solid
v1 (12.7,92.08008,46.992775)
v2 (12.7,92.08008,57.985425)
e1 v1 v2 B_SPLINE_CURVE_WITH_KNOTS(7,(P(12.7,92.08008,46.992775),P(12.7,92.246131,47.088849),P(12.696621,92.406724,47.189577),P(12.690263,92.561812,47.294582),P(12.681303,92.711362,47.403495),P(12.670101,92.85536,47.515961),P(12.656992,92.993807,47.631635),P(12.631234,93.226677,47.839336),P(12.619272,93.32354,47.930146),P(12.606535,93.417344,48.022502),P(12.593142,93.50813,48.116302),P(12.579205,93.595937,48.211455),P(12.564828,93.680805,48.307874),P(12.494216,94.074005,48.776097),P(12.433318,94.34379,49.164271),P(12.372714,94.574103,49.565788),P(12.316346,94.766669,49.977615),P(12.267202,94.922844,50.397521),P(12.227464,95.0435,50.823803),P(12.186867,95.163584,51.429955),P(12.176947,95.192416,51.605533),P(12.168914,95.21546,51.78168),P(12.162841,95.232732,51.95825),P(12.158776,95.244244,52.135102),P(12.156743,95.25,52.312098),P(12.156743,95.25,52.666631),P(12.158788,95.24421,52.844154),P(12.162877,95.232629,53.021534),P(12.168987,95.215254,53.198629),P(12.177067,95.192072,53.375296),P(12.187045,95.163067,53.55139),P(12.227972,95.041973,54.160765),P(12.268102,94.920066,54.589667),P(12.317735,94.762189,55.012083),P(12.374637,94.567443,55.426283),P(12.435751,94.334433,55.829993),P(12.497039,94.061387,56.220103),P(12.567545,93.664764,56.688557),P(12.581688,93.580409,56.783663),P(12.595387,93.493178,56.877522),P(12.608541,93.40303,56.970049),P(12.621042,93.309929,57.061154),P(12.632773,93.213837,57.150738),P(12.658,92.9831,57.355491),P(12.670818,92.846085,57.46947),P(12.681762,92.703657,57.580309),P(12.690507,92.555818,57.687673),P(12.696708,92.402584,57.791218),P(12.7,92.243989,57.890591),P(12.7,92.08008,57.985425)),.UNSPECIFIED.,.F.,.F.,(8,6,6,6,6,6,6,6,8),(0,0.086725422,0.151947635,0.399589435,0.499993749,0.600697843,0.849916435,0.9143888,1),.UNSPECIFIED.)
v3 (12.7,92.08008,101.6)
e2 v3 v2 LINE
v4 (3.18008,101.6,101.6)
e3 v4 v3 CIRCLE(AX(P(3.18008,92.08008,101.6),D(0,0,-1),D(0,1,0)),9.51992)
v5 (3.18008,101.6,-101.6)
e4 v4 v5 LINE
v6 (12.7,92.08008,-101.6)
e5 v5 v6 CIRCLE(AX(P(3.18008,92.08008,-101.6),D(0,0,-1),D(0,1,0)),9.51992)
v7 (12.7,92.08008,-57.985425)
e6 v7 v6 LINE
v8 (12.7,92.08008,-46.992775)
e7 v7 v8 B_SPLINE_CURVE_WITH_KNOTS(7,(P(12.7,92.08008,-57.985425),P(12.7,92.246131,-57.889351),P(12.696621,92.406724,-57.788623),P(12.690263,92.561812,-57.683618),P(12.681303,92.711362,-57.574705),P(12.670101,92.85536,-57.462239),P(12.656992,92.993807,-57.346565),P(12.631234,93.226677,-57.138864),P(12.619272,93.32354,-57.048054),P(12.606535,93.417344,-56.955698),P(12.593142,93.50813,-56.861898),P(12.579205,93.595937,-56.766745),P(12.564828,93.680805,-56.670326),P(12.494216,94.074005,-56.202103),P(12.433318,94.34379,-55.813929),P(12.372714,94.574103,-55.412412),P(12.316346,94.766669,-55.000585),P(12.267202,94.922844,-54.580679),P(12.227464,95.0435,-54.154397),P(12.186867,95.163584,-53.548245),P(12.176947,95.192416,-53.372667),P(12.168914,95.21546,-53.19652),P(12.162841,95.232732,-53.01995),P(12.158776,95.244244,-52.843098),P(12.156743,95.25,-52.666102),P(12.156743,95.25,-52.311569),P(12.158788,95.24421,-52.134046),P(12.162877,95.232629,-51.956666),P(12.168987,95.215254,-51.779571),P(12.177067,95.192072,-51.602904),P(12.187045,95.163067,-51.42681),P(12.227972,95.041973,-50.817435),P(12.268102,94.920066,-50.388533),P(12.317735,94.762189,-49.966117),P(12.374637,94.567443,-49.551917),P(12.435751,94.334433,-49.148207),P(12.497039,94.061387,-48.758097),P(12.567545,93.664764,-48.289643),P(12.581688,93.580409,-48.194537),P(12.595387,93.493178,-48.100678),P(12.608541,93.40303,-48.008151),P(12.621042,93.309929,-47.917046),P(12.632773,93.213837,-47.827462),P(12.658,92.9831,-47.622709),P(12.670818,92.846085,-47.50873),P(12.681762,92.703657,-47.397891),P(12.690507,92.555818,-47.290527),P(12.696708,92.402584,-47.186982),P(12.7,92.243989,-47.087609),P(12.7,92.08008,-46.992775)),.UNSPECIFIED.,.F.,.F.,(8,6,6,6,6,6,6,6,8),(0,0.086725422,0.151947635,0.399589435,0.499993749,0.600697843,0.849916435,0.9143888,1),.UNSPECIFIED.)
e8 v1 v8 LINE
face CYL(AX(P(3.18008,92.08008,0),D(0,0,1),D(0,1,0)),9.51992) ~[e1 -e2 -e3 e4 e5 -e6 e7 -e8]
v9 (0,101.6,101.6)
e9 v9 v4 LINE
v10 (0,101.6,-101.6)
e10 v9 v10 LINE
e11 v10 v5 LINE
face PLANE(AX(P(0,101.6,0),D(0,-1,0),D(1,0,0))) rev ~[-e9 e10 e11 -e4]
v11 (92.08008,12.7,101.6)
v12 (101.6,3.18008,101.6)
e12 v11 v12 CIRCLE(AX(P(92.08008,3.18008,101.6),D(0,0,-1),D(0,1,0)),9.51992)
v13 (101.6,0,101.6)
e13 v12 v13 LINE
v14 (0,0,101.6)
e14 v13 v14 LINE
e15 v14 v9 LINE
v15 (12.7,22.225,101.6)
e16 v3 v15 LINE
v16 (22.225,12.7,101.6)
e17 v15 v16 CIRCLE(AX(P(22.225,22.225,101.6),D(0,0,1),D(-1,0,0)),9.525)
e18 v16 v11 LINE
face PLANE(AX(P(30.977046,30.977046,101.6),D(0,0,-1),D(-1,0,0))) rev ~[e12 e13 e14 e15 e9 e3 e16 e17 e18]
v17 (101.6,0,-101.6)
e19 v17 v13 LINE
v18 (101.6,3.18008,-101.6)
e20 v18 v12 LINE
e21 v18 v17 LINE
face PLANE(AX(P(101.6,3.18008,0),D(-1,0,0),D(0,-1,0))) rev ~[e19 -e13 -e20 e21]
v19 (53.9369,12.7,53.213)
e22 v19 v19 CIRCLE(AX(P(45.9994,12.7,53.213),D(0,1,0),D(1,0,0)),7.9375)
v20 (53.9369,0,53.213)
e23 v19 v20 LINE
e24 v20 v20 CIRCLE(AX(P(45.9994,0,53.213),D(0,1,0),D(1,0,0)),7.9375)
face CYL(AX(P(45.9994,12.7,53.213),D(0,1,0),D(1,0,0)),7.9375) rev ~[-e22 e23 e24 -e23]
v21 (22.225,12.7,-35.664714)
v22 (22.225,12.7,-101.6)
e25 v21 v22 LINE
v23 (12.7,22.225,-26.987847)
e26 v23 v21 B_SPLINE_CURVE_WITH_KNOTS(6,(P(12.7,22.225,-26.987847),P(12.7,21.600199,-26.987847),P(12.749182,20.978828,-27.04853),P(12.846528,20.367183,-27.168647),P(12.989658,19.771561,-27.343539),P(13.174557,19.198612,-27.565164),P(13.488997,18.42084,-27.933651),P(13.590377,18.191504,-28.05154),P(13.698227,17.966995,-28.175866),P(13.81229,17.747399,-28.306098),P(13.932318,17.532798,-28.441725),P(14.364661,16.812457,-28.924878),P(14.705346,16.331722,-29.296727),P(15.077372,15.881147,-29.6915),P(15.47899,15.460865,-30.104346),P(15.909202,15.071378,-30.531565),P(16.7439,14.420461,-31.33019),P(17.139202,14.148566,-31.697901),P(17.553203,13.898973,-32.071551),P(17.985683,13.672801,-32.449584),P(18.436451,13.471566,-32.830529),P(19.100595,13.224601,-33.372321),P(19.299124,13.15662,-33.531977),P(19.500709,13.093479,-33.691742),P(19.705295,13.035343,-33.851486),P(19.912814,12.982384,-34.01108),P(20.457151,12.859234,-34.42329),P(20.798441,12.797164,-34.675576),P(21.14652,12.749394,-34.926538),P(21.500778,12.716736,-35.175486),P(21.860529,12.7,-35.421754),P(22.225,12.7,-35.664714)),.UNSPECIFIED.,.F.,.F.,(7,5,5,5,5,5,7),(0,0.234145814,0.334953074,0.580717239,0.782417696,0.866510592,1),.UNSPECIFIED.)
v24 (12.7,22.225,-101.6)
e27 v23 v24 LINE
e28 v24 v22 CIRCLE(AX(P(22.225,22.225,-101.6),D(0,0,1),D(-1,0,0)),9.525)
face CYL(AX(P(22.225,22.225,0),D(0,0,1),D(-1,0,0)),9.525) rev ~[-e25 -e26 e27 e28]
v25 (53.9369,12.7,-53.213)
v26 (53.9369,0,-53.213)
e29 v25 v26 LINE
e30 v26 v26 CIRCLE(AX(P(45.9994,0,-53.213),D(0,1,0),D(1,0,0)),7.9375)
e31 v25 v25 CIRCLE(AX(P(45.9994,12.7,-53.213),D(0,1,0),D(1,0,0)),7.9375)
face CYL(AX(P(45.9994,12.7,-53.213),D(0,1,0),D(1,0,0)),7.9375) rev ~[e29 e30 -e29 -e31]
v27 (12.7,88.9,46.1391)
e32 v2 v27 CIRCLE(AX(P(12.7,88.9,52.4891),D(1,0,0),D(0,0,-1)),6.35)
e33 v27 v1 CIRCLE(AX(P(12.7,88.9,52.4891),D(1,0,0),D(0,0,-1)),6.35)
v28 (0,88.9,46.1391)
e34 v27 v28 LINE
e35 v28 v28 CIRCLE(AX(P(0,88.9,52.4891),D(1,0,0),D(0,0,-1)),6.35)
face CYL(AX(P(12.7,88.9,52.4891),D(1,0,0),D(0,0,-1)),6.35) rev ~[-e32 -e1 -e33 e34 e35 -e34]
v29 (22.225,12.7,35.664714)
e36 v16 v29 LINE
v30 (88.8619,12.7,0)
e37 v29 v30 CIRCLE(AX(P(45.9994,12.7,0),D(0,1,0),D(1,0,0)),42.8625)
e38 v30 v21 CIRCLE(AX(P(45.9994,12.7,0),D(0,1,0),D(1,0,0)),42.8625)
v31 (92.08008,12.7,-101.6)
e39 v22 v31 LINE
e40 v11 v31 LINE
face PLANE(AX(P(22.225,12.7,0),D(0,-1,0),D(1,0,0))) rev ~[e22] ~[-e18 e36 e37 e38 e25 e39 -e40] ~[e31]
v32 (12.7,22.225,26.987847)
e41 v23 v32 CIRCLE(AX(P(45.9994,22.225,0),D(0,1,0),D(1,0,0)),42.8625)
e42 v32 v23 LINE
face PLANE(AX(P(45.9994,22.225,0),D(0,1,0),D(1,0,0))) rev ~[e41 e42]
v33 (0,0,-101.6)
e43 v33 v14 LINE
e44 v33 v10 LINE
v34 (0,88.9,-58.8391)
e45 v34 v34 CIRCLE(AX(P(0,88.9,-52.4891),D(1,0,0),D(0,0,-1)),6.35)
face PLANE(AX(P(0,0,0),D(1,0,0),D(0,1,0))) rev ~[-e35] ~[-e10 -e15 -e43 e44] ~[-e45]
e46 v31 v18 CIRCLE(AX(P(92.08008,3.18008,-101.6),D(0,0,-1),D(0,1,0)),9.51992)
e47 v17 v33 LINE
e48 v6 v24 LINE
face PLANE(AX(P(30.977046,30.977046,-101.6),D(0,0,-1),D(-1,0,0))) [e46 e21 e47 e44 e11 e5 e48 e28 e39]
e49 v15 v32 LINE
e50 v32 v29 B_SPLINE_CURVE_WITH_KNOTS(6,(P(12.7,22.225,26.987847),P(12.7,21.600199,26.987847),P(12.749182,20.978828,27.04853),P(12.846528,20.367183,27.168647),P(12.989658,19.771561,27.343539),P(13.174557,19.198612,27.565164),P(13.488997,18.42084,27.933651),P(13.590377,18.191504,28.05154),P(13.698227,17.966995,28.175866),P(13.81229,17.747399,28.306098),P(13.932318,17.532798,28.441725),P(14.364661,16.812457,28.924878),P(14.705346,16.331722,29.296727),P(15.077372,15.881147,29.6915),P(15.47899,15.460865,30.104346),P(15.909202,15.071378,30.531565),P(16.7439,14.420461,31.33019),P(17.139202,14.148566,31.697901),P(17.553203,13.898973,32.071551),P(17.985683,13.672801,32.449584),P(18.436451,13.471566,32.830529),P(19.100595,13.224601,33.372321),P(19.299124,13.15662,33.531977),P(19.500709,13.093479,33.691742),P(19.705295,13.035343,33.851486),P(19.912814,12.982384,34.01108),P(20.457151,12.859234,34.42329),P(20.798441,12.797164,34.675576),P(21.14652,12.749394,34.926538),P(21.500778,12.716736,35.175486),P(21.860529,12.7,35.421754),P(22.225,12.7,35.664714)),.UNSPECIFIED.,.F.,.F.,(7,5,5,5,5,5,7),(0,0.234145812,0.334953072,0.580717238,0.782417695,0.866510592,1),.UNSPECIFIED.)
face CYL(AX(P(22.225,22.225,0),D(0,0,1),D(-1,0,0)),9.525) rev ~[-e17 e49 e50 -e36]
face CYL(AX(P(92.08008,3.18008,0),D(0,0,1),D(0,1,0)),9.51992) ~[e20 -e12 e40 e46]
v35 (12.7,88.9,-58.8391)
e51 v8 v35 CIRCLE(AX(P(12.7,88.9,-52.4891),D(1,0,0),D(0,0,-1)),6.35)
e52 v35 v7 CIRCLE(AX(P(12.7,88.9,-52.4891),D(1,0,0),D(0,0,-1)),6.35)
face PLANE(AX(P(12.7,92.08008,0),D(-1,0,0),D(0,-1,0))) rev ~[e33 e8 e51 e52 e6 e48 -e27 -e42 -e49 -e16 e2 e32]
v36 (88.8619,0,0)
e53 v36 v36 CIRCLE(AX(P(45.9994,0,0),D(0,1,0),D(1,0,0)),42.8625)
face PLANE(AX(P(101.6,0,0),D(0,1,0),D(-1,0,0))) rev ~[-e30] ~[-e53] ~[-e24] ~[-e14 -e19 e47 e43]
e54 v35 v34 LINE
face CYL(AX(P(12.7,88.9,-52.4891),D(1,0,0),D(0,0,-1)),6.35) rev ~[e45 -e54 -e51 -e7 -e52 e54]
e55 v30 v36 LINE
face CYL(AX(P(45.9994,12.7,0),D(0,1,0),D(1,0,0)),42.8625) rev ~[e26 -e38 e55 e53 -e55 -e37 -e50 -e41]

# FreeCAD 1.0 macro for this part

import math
import FreeCAD as App
import Part
import Sketcher

V = App.Vector
Q = App.Units.Quantity

doc = App.newDocument("Part")
body = doc.addObject("PartDesign::Body", "Body")

# Sketch on XY plane
sketch1 = body.newObject("Sketcher::SketchObject", "Sketch")
sketch1.AttachmentSupport = (doc.getObject("XY_Plane"), [""])
sketch1.MapMode = "FlatFace"
sketch1.addGeometry([
    Part.LineSegment(V(0, 101.6, 0), V(0, 0, 0)),  # 0
    Part.LineSegment(V(0, 0, 0), V(101.6, 0, 0)),  # 1
    Part.LineSegment(V(101.6, 0, 0), V(101.6, 3.2, 0)),  # 2
    Part.ArcOfCircle(Part.Circle(V(92.1, 3.2, 0), V(0, 0, 1), 9.5), math.radians(0), math.radians(90)),  # 3
    Part.LineSegment(V(92.1, 12.7, 0), V(22.2, 12.7, 0)),  # 4
    Part.ArcOfCircle(Part.Circle(V(22.2, 22.2, 0), V(0, 0, 1), 9.5), math.radians(180), math.radians(270)),  # 5
    Part.LineSegment(V(12.7, 22.2, 0), V(12.7, 92.1, 0)),  # 6
    Part.ArcOfCircle(Part.Circle(V(3.2, 92.1, 0), V(0, 0, 1), 9.5), math.radians(0), math.radians(90)),  # 7
    Part.LineSegment(V(3.2, 101.6, 0), V(0, 101.6, 0)),  # 8
], False)
sketch1.addConstraint([
    Sketcher.Constraint("Coincident", 0, 2, 1, 1),
    Sketcher.Constraint("Coincident", 1, 2, 2, 1),
    Sketcher.Constraint("Tangent", 2, 2, 3, 1),
    Sketcher.Constraint("Tangent", 3, 2, 4, 1),
    Sketcher.Constraint("Tangent", 4, 2, 5, 2),
    Sketcher.Constraint("Tangent", 5, 1, 6, 1),
    Sketcher.Constraint("Tangent", 6, 2, 7, 1),
    Sketcher.Constraint("Tangent", 7, 2, 8, 1),
    Sketcher.Constraint("Coincident", 8, 2, 0, 1),
    Sketcher.Constraint("Vertical", 0),
    Sketcher.Constraint("Horizontal", 1),
    Sketcher.Constraint("Vertical", 2),
    Sketcher.Constraint("Horizontal", 4),
    Sketcher.Constraint("Vertical", 6),
    Sketcher.Constraint("Horizontal", 8),
    Sketcher.Constraint("Coincident", 0, 2, -1, 1),
    Sketcher.Constraint("Equal", 3, 7),
    Sketcher.Constraint("Equal", 1, 0),
    Sketcher.Constraint("Equal", 8, 2),
    Sketcher.Constraint("DistanceX", 1, 1, 1, 2, Q("4 in")),
    Sketcher.Constraint("Radius", 5, Q("0.375 in")),
    Sketcher.Constraint("DistanceY", -1, 1, 3, 2, Q("0.5 in")),
    Sketcher.Constraint("Radius", 3, Q("0.3748 in")),
])
pad1 = body.newObject("PartDesign::Pad", "Pad")
pad1.Profile = sketch1
pad1.Length = Q("8 in")
pad1.Midplane = True

# Sketch on XZ plane
sketch2 = body.newObject("Sketcher::SketchObject", "Sketch001")
sketch2.AttachmentSupport = (doc.getObject("XZ_Plane"), [""])
sketch2.MapMode = "FlatFace"
sketch2.AttachmentOffset = App.Placement(V(0, 0, -0.5 * 25.4), App.Rotation())
sketch2.addGeometry([
    Part.Circle(V(46, -53, 0), V(0, 0, 1), 8),
    Part.Circle(V(46, 53, 0), V(0, 0, 1), 8),
    Part.Circle(V(46, 0, 0), V(0, 0, 1), 43),
], False)
sketch2.addConstraint([
    Sketcher.Constraint("Equal", 0, 1),
    Sketcher.Constraint("Symmetric", 0, 3, 1, 3, -1),
    Sketcher.Constraint("PointOnObject", 2, 3, -1),
    Sketcher.Constraint("Vertical", 1, 3, 2, 3),
    Sketcher.Constraint("Diameter", 0, Q("0.625 in")),
    Sketcher.Constraint("Diameter", 2, Q("3.375 in")),
    Sketcher.Constraint("DistanceY", 0, 3, 1, 3, Q("4.19 in")),
    Sketcher.Constraint("DistanceX", -1, 1, 0, 3, Q("1.811 in")),
])
pocket1 = body.newObject("PartDesign::Pocket", "Pocket")
pocket1.Profile = sketch2
pocket1.Type = "TwoLengths"
pocket1.Length = Q("0.375 in")
pocket1.Length2 = Q("0.5 in")

# Sketch on YZ plane
sketch3 = body.newObject("Sketcher::SketchObject", "Sketch002")
sketch3.AttachmentSupport = (doc.getObject("YZ_Plane"), [""])
sketch3.MapMode = "FlatFace"
sketch3.AttachmentOffset = App.Placement(V(0, 0, 0.5 * 25.4), App.Rotation())
sketch3.addGeometry(Part.Circle(V(89, -52, 0), V(0, 0, 1), 6), False)
sketch3.addConstraint([
    Sketcher.Constraint("Diameter", 0, Q("0.5 in")),
    Sketcher.Constraint("DistanceX", -1, 1, 0, 3, Q("3.5 in")),
    Sketcher.Constraint("DistanceY", 0, 3, -1, 1, Q("2.0665 in")),
])
pocket2 = body.newObject("PartDesign::Pocket", "Pocket001")
pocket2.Profile = sketch3
pocket2.Type = "UpToFirst"

# Sketch on YZ plane
sketch4 = body.newObject("Sketcher::SketchObject", "Sketch003")
sketch4.AttachmentSupport = (doc.getObject("YZ_Plane"), [""])
sketch4.MapMode = "FlatFace"
sketch4.AttachmentOffset = App.Placement(V(0, 0, 0.5 * 25.4), App.Rotation())
sketch4.addGeometry(Part.Circle(V(89, 52, 0), V(0, 0, 1), 6), False)
sketch4.addConstraint([
    Sketcher.Constraint("Diameter", 0, Q("0.5 in")),
    Sketcher.Constraint("DistanceX", -1, 1, 0, 3, Q("3.5 in")),
    Sketcher.Constraint("DistanceY", -1, 1, 0, 3, Q("2.0665 in")),
])
pocket3 = body.newObject("PartDesign::Pocket", "Pocket002")
pocket3.Profile = sketch4
pocket3.Type = "UpToFirst"

doc.recompute()
